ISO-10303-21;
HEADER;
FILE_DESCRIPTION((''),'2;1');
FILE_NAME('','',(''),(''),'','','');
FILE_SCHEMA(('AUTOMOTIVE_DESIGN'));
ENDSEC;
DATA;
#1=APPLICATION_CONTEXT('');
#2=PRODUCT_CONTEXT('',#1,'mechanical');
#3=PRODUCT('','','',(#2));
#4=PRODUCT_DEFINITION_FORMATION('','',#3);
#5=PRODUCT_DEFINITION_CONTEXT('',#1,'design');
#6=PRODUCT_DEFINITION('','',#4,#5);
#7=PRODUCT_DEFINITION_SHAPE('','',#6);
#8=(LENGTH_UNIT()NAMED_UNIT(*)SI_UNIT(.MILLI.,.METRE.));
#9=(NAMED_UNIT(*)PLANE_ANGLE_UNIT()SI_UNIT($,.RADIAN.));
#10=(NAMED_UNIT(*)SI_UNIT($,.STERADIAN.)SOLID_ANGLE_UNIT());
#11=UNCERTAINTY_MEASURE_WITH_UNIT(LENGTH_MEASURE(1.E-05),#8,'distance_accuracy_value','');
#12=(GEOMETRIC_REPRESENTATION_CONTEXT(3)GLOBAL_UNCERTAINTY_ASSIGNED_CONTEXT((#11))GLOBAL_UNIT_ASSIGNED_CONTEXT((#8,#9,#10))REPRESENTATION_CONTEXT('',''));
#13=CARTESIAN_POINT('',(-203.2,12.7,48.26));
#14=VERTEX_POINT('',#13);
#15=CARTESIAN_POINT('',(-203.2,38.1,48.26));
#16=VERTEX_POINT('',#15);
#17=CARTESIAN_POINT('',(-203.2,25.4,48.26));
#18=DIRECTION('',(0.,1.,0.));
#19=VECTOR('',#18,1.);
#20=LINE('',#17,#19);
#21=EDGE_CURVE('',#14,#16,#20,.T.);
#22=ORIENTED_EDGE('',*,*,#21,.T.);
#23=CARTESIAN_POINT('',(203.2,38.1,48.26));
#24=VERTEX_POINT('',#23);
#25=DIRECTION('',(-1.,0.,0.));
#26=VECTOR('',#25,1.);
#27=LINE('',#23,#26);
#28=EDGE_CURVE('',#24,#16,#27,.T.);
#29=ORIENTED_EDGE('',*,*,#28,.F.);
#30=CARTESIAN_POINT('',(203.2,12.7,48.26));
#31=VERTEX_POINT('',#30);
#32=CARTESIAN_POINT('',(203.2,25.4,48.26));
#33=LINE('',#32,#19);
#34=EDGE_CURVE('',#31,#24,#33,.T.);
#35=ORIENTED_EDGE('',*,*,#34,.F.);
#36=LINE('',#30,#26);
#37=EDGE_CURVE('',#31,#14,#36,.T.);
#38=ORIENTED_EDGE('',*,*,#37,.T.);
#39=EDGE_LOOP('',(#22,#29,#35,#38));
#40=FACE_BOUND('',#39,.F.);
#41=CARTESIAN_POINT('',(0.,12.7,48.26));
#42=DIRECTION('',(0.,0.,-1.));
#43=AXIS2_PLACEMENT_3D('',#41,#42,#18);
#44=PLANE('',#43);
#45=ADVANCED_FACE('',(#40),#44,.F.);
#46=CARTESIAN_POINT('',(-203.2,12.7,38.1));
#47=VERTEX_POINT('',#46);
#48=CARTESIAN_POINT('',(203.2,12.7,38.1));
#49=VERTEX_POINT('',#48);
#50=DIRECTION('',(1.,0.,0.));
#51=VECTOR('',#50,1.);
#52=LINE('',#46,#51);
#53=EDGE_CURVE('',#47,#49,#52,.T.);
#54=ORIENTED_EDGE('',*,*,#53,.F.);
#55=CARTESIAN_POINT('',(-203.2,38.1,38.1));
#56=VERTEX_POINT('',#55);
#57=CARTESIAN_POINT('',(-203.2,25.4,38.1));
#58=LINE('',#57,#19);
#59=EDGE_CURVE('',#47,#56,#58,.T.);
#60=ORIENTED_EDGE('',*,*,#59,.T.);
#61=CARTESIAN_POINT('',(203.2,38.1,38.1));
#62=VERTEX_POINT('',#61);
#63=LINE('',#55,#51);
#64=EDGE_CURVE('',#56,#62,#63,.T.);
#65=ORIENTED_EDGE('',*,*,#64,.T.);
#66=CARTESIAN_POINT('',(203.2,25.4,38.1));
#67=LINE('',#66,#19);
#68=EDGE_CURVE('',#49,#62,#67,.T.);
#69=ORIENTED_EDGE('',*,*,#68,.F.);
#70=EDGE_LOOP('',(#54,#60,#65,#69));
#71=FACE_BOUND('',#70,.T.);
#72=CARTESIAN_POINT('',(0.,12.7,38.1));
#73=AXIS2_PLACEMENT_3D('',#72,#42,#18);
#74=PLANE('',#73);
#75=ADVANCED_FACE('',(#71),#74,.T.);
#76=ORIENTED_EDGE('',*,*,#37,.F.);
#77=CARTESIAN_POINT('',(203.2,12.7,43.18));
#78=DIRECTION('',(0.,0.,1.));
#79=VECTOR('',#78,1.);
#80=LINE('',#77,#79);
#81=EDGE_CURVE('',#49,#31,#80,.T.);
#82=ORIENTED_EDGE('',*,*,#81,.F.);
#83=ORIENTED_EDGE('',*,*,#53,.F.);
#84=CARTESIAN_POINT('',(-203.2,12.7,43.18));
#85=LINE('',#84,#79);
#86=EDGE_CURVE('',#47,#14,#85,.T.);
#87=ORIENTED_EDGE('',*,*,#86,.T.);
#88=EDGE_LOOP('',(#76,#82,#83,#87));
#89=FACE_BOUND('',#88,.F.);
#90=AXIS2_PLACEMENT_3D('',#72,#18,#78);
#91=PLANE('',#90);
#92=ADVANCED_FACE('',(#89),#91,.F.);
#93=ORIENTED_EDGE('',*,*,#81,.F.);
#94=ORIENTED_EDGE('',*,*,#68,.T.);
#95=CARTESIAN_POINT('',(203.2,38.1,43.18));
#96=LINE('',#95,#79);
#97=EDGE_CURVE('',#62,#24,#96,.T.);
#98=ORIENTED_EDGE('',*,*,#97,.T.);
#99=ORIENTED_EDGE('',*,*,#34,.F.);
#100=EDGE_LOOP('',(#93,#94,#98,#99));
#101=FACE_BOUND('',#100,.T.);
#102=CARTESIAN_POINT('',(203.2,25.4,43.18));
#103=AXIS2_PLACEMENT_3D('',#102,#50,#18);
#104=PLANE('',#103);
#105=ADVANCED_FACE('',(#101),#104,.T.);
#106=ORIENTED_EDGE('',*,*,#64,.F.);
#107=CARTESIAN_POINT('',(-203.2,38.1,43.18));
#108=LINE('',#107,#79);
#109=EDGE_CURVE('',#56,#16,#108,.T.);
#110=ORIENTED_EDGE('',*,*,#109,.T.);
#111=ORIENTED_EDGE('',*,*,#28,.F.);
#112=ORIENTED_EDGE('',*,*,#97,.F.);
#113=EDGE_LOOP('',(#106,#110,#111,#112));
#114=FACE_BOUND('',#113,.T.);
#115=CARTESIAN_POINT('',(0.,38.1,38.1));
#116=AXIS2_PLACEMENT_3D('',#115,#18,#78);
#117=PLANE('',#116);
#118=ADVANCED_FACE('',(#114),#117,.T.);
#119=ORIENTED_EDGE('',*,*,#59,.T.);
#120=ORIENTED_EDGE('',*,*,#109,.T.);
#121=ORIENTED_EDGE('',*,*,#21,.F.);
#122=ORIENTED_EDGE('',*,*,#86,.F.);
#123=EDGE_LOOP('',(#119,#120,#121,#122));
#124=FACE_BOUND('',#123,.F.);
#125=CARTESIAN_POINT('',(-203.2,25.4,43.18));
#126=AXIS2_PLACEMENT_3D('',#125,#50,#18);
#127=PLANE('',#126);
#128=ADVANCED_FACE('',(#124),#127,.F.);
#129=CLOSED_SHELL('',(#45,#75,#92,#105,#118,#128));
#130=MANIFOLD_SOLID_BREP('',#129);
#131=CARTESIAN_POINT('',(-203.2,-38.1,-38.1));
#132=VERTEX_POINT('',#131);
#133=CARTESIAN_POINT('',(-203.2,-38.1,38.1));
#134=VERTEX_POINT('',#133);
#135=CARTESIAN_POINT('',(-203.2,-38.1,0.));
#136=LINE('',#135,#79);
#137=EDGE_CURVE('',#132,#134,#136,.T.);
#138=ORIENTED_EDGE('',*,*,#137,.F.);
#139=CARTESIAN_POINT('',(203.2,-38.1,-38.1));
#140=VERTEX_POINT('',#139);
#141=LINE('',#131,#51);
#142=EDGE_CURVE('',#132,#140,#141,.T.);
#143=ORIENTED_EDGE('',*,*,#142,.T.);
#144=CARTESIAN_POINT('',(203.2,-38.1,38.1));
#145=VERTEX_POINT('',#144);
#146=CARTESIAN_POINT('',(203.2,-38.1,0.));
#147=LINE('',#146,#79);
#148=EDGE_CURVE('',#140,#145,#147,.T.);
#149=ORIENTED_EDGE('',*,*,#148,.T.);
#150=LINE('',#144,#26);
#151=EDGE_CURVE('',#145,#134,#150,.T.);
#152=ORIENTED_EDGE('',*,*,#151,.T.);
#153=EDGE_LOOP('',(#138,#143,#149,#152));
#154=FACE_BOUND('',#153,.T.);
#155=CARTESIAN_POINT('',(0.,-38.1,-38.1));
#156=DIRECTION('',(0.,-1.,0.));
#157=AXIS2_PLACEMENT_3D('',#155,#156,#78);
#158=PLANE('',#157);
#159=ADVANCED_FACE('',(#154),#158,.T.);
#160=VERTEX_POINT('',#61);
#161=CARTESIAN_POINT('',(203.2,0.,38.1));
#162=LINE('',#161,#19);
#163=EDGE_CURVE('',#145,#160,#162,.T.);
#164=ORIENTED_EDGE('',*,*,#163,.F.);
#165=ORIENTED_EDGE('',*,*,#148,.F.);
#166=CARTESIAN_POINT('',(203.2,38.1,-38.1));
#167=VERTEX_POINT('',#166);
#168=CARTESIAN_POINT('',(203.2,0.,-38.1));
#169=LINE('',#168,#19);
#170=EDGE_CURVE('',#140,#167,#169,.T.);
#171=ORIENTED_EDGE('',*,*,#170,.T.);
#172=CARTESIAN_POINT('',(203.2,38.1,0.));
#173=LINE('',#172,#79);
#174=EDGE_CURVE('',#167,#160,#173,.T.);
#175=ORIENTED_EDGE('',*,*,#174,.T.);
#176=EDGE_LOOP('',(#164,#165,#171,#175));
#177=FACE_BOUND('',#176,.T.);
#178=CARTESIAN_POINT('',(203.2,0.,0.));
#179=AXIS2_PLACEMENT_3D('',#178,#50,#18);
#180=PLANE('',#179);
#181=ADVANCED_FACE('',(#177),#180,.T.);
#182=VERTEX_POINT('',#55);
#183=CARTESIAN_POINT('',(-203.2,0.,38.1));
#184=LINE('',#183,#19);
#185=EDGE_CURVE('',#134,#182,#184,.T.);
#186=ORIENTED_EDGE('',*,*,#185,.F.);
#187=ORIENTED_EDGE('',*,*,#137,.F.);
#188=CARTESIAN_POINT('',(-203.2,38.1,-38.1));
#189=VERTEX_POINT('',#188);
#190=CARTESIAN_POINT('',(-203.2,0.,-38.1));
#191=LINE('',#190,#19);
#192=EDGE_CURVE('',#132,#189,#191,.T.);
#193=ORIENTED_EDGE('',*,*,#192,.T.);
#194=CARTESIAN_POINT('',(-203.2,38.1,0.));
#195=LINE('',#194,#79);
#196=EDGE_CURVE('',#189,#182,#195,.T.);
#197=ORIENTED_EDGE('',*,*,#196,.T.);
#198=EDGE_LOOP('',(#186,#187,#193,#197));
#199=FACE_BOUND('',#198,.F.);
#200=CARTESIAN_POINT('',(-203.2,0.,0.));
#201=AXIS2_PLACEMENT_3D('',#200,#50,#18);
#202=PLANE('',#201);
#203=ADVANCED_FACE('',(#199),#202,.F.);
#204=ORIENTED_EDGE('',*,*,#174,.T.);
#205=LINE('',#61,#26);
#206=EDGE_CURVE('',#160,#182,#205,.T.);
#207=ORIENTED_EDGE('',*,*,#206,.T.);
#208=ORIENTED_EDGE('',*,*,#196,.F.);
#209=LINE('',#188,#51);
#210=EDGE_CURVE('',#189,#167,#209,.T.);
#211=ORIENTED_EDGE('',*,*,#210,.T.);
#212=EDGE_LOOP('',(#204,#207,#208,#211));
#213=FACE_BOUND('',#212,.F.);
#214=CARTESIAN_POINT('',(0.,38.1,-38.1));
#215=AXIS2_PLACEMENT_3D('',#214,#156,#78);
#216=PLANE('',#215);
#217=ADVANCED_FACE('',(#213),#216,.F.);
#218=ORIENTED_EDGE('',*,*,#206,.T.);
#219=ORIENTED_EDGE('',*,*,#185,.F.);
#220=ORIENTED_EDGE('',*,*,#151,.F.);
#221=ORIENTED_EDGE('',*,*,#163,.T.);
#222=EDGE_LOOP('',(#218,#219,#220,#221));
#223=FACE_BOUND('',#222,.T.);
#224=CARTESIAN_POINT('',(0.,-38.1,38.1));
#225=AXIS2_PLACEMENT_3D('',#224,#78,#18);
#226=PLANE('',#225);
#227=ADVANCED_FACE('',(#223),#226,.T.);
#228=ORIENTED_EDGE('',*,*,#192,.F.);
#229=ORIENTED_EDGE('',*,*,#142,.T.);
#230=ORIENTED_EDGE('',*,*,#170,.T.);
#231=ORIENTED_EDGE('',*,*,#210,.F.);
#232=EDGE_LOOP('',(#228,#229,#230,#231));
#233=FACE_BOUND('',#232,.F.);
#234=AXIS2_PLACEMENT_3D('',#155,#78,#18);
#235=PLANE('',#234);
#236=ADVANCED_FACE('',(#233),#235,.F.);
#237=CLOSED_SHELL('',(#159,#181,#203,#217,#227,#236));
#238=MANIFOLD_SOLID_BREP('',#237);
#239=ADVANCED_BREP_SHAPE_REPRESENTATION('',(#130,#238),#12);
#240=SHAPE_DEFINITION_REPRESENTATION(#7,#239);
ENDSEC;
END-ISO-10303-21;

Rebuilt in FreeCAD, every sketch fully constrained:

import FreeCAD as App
import Part
import Sketcher
Q = App.Units.Quantity


def add_polygon(sketch, points):
    """Adds a closed chain of lines whose ends are joined by coincident constraints."""
    first, n = sketch.GeometryCount, len(points)
    for a, b in zip(points, points[1:] + points[:1]):
        sketch.addGeometry(Part.LineSegment(App.Vector(*a, 0), App.Vector(*b, 0)), False)
    for i in range(n):
        sketch.addConstraint(Sketcher.Constraint("Coincident", first + i, 2, first + (i + 1) % n, 1))

doc = App.newDocument("Part")
body = doc.addObject("PartDesign::Body", "Body")

# Sketch on YZ plane
sketch1 = body.newObject("Sketcher::SketchObject", "Sketch")
sketch1.AttachmentSupport = (doc.getObject("YZ_Plane"), [""])
sketch1.MapMode = "FlatFace"
add_polygon(sketch1, [(-38, 38), (-38, -38), (38, -38), (38, 38)])  # lines 0-3
sketch1.addConstraint([
    Sketcher.Constraint("Vertical", 0),
    Sketcher.Constraint("Horizontal", 1),
    Sketcher.Constraint("Vertical", 2),
    Sketcher.Constraint("Horizontal", 3),
    Sketcher.Constraint("Symmetric", 0, 2, 2, 2, -1, 1),
    Sketcher.Constraint("Equal", 3, 0),
    Sketcher.Constraint("DistanceX", 1, 1, 1, 2, Q("3 in")),
])
pad1 = body.newObject("PartDesign::Pad", "Pad")
pad1.Profile = sketch1
pad1.Type = "TwoLengths"
pad1.Length = Q("8 in")
pad1.Length2 = Q("8 in")
pad1.Reversed = True
body2 = doc.addObject("PartDesign::Body", "Body001")

# Sketch on YZ plane
sketch2 = body2.newObject("Sketcher::SketchObject", "Sketch001")
sketch2.AttachmentSupport = (doc.getObject("YZ_Plane001"), [""])
sketch2.MapMode = "FlatFace"
add_polygon(sketch2, [(13, 48), (13, 38), (38, 38), (38, 48)])  # lines 0-3
sketch2.addConstraint([
    Sketcher.Constraint("Vertical", 0),
    Sketcher.Constraint("Horizontal", 1),
    Sketcher.Constraint("Vertical", 2),
    Sketcher.Constraint("Horizontal", 3),
    Sketcher.Constraint("DistanceX", 1, 1, 1, 2, Q("1 in")),
    Sketcher.Constraint("DistanceY", 0, 2, 0, 1, Q("0.4 in")),
    Sketcher.Constraint("DistanceX", -1, 1, 0, 2, Q("0.5 in")),
    Sketcher.Constraint("DistanceY", -1, 1, 0, 2, Q("1.5 in")),
])
pad2 = body2.newObject("PartDesign::Pad", "Pad001")
pad2.Profile = sketch2
pad2.Type = "TwoLengths"
pad2.Length = Q("8 in")
pad2.Length2 = Q("8 in")

doc.recompute()
